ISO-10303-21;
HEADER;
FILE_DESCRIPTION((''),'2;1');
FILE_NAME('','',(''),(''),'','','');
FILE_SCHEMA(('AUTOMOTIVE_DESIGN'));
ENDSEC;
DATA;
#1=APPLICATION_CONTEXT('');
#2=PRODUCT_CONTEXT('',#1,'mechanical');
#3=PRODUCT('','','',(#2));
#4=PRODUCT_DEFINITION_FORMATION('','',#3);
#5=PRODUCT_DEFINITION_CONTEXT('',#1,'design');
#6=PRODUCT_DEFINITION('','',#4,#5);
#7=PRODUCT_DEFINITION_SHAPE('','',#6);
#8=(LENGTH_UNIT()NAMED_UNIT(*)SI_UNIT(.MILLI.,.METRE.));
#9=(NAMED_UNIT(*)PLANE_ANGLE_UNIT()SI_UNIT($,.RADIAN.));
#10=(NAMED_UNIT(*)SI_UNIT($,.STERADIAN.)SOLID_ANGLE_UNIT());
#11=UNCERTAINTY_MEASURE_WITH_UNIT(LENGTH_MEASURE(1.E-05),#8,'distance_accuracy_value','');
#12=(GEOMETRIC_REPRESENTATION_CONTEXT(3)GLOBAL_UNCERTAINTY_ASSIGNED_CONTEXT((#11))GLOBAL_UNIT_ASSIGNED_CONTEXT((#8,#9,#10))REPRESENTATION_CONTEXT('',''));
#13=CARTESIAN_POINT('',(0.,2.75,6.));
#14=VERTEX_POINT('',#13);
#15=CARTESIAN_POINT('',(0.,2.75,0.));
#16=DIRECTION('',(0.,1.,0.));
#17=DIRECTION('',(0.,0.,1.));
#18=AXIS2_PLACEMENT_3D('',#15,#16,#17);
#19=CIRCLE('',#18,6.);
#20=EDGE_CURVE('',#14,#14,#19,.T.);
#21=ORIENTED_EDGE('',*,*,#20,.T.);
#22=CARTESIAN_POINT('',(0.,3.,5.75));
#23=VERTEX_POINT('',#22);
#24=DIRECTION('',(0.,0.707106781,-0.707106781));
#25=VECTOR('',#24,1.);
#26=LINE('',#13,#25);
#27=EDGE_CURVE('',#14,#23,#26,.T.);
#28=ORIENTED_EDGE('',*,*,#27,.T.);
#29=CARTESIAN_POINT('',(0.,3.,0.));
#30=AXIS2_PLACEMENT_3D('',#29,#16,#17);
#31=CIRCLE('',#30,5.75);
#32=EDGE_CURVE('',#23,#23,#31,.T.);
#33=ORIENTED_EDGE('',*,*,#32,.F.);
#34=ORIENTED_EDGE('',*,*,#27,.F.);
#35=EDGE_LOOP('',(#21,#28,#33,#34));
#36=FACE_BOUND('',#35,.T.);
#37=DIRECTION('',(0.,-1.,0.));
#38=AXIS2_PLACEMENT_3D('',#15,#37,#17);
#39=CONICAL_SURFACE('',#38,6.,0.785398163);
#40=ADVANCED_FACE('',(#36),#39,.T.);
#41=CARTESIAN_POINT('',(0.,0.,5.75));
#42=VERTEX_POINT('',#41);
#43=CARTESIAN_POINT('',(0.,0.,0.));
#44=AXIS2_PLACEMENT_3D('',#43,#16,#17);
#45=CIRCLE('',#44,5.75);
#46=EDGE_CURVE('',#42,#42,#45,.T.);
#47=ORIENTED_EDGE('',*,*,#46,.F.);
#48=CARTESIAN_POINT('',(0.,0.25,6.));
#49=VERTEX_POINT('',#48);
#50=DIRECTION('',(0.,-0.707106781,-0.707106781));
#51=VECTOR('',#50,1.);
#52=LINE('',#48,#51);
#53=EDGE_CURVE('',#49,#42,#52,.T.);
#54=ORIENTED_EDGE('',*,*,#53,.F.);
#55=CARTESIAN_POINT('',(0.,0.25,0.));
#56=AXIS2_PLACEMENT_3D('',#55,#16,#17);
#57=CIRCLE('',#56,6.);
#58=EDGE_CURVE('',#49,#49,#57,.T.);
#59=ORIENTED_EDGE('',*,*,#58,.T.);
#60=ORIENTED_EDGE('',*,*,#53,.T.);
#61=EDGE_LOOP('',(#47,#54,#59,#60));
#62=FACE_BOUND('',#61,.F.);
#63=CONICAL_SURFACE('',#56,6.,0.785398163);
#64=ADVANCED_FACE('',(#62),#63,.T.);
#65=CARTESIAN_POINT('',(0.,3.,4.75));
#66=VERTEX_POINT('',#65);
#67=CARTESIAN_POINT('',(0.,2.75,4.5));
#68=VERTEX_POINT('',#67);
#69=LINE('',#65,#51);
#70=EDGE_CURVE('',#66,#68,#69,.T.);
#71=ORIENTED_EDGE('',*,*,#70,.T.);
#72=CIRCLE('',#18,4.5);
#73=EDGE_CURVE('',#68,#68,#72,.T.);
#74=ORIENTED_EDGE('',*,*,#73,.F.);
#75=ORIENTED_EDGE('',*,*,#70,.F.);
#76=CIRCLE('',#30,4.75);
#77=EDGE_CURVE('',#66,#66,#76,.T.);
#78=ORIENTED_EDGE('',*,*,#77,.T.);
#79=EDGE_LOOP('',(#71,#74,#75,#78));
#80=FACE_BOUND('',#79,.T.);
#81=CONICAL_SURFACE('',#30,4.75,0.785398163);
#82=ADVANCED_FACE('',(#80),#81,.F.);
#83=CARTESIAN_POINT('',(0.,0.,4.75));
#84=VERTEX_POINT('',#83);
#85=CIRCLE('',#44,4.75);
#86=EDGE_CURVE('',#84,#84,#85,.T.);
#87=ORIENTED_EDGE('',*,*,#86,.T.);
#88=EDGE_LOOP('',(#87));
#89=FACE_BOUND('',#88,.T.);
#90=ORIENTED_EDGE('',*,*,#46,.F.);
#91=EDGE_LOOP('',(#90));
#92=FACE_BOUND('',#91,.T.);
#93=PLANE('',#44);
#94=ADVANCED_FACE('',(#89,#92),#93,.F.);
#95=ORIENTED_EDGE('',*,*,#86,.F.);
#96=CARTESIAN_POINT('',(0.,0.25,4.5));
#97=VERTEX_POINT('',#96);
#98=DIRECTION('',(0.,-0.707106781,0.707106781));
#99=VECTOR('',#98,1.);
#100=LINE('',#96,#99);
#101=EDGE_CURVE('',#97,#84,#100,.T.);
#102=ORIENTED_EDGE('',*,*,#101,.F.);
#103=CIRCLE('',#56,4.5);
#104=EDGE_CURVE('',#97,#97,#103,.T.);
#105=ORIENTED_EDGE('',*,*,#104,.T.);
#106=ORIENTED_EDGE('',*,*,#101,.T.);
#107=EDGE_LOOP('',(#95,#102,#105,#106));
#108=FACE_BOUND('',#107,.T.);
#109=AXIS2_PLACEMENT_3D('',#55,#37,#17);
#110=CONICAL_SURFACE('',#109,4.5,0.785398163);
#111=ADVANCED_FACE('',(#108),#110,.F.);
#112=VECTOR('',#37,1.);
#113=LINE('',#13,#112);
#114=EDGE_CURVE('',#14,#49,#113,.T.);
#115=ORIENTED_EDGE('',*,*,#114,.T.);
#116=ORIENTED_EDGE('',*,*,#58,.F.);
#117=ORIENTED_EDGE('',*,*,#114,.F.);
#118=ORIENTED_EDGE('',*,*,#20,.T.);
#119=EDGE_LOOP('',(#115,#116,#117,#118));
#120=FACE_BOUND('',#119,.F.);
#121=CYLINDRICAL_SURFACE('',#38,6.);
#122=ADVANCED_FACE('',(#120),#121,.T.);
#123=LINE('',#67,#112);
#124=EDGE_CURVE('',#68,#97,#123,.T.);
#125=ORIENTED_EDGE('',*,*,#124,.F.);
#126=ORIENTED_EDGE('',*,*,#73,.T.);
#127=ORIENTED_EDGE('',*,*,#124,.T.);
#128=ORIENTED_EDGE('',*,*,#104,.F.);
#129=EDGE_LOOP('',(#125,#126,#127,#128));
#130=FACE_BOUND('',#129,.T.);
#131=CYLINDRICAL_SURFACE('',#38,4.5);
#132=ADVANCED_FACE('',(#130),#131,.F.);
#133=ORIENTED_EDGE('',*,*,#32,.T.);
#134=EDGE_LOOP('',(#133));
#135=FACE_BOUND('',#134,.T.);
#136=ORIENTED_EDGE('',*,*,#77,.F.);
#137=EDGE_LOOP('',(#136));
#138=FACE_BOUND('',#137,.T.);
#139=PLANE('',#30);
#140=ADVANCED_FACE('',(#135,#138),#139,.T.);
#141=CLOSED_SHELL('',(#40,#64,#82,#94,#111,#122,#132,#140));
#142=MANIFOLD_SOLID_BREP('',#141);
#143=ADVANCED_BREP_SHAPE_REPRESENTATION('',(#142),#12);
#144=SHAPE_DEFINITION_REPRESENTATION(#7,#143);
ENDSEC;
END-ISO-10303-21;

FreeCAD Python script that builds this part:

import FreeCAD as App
import Part
import Sketcher
Q = App.Units.Quantity

doc = App.newDocument("Part")
body = doc.addObject("PartDesign::Body", "Body")

sketch1 = doc.addObject("Sketcher::SketchObject", "Sketch")
body.addObject(sketch1)
sketch1.AttachmentSupport = (doc.YZ_Plane, [""])
sketch1.MapMode = "FlatFace"
sketch1.addGeometry(Part.LineSegment(App.Vector(3, 4.75, 0), App.Vector(3, 5.75, 0)), False)
sketch1.addGeometry(Part.LineSegment(App.Vector(3, 5.75, 0), App.Vector(2.75, 6, 0)), False)
sketch1.addGeometry(Part.LineSegment(App.Vector(2.75, 6, 0), App.Vector(0.25, 6, 0)), False)
sketch1.addGeometry(Part.LineSegment(App.Vector(0.25, 6, 0), App.Vector(0, 5.75, 0)), False)
sketch1.addGeometry(Part.LineSegment(App.Vector(0, 5.75, 0), App.Vector(0, 4.75, 0)), False)
sketch1.addGeometry(Part.LineSegment(App.Vector(0, 4.75, 0), App.Vector(0.25, 4.5, 0)), False)
sketch1.addGeometry(Part.LineSegment(App.Vector(0.25, 4.5, 0), App.Vector(2.75, 4.5, 0)), False)
sketch1.addGeometry(Part.LineSegment(App.Vector(2.75, 4.5, 0), App.Vector(3, 4.75, 0)), False)
sketch1.addConstraint(Sketcher.Constraint("Coincident", 0, 2, 1, 1))
sketch1.addConstraint(Sketcher.Constraint("Coincident", 1, 2, 2, 1))
sketch1.addConstraint(Sketcher.Constraint("Coincident", 2, 2, 3, 1))
sketch1.addConstraint(Sketcher.Constraint("Coincident", 3, 2, 4, 1))
sketch1.addConstraint(Sketcher.Constraint("Coincident", 4, 2, 5, 1))
sketch1.addConstraint(Sketcher.Constraint("Coincident", 5, 2, 6, 1))
sketch1.addConstraint(Sketcher.Constraint("Coincident", 6, 2, 7, 1))
sketch1.addConstraint(Sketcher.Constraint("Coincident", 7, 2, 0, 1))
sketch1.addConstraint(Sketcher.Constraint("Vertical", 0))
sketch1.addConstraint(Sketcher.Constraint("Horizontal", 2))
sketch1.addConstraint(Sketcher.Constraint("Vertical", 4))
sketch1.addConstraint(Sketcher.Constraint("Horizontal", 6))
sketch1.addConstraint(Sketcher.Constraint("PointOnObject", 3, 2, -2))
sketch1.addConstraint(Sketcher.Constraint("Perpendicular", 1, 3))
sketch1.addConstraint(Sketcher.Constraint("Perpendicular", 3, 5))
sketch1.addConstraint(Sketcher.Constraint("Perpendicular", 5, 7))
sketch1.addConstraint(Sketcher.Constraint("Horizontal", 0, 2, 3, 2))
sketch1.addConstraint(Sketcher.Constraint("Horizontal", 4, 2, 7, 2))
sketch1.addConstraint(Sketcher.Constraint("Vertical", 2, 2, 5, 2))
sketch1.addConstraint(Sketcher.Constraint("Vertical", 1, 2, 6, 2))
sketch1.addConstraint(Sketcher.Constraint("DistanceX", -1, 1, 0, 2, Q("3 mm")))
sketch1.addConstraint(Sketcher.Constraint("DistanceY", -1, 1, 1, 2, Q("6 mm")))
sketch1.addConstraint(Sketcher.Constraint("DistanceY", -1, 1, 5, 2, Q("4.5 mm")))
sketch1.addConstraint(Sketcher.Constraint("DistanceY", 0, 1, 0, 2, Q("1 mm")))
revolution = doc.addObject("PartDesign::Revolution", "Revolution")
body.addObject(revolution)
revolution.Profile = sketch1
revolution.ReferenceAxis = (sketch1, ["H_Axis"])
revolution.Angle = 360

doc.recompute()
